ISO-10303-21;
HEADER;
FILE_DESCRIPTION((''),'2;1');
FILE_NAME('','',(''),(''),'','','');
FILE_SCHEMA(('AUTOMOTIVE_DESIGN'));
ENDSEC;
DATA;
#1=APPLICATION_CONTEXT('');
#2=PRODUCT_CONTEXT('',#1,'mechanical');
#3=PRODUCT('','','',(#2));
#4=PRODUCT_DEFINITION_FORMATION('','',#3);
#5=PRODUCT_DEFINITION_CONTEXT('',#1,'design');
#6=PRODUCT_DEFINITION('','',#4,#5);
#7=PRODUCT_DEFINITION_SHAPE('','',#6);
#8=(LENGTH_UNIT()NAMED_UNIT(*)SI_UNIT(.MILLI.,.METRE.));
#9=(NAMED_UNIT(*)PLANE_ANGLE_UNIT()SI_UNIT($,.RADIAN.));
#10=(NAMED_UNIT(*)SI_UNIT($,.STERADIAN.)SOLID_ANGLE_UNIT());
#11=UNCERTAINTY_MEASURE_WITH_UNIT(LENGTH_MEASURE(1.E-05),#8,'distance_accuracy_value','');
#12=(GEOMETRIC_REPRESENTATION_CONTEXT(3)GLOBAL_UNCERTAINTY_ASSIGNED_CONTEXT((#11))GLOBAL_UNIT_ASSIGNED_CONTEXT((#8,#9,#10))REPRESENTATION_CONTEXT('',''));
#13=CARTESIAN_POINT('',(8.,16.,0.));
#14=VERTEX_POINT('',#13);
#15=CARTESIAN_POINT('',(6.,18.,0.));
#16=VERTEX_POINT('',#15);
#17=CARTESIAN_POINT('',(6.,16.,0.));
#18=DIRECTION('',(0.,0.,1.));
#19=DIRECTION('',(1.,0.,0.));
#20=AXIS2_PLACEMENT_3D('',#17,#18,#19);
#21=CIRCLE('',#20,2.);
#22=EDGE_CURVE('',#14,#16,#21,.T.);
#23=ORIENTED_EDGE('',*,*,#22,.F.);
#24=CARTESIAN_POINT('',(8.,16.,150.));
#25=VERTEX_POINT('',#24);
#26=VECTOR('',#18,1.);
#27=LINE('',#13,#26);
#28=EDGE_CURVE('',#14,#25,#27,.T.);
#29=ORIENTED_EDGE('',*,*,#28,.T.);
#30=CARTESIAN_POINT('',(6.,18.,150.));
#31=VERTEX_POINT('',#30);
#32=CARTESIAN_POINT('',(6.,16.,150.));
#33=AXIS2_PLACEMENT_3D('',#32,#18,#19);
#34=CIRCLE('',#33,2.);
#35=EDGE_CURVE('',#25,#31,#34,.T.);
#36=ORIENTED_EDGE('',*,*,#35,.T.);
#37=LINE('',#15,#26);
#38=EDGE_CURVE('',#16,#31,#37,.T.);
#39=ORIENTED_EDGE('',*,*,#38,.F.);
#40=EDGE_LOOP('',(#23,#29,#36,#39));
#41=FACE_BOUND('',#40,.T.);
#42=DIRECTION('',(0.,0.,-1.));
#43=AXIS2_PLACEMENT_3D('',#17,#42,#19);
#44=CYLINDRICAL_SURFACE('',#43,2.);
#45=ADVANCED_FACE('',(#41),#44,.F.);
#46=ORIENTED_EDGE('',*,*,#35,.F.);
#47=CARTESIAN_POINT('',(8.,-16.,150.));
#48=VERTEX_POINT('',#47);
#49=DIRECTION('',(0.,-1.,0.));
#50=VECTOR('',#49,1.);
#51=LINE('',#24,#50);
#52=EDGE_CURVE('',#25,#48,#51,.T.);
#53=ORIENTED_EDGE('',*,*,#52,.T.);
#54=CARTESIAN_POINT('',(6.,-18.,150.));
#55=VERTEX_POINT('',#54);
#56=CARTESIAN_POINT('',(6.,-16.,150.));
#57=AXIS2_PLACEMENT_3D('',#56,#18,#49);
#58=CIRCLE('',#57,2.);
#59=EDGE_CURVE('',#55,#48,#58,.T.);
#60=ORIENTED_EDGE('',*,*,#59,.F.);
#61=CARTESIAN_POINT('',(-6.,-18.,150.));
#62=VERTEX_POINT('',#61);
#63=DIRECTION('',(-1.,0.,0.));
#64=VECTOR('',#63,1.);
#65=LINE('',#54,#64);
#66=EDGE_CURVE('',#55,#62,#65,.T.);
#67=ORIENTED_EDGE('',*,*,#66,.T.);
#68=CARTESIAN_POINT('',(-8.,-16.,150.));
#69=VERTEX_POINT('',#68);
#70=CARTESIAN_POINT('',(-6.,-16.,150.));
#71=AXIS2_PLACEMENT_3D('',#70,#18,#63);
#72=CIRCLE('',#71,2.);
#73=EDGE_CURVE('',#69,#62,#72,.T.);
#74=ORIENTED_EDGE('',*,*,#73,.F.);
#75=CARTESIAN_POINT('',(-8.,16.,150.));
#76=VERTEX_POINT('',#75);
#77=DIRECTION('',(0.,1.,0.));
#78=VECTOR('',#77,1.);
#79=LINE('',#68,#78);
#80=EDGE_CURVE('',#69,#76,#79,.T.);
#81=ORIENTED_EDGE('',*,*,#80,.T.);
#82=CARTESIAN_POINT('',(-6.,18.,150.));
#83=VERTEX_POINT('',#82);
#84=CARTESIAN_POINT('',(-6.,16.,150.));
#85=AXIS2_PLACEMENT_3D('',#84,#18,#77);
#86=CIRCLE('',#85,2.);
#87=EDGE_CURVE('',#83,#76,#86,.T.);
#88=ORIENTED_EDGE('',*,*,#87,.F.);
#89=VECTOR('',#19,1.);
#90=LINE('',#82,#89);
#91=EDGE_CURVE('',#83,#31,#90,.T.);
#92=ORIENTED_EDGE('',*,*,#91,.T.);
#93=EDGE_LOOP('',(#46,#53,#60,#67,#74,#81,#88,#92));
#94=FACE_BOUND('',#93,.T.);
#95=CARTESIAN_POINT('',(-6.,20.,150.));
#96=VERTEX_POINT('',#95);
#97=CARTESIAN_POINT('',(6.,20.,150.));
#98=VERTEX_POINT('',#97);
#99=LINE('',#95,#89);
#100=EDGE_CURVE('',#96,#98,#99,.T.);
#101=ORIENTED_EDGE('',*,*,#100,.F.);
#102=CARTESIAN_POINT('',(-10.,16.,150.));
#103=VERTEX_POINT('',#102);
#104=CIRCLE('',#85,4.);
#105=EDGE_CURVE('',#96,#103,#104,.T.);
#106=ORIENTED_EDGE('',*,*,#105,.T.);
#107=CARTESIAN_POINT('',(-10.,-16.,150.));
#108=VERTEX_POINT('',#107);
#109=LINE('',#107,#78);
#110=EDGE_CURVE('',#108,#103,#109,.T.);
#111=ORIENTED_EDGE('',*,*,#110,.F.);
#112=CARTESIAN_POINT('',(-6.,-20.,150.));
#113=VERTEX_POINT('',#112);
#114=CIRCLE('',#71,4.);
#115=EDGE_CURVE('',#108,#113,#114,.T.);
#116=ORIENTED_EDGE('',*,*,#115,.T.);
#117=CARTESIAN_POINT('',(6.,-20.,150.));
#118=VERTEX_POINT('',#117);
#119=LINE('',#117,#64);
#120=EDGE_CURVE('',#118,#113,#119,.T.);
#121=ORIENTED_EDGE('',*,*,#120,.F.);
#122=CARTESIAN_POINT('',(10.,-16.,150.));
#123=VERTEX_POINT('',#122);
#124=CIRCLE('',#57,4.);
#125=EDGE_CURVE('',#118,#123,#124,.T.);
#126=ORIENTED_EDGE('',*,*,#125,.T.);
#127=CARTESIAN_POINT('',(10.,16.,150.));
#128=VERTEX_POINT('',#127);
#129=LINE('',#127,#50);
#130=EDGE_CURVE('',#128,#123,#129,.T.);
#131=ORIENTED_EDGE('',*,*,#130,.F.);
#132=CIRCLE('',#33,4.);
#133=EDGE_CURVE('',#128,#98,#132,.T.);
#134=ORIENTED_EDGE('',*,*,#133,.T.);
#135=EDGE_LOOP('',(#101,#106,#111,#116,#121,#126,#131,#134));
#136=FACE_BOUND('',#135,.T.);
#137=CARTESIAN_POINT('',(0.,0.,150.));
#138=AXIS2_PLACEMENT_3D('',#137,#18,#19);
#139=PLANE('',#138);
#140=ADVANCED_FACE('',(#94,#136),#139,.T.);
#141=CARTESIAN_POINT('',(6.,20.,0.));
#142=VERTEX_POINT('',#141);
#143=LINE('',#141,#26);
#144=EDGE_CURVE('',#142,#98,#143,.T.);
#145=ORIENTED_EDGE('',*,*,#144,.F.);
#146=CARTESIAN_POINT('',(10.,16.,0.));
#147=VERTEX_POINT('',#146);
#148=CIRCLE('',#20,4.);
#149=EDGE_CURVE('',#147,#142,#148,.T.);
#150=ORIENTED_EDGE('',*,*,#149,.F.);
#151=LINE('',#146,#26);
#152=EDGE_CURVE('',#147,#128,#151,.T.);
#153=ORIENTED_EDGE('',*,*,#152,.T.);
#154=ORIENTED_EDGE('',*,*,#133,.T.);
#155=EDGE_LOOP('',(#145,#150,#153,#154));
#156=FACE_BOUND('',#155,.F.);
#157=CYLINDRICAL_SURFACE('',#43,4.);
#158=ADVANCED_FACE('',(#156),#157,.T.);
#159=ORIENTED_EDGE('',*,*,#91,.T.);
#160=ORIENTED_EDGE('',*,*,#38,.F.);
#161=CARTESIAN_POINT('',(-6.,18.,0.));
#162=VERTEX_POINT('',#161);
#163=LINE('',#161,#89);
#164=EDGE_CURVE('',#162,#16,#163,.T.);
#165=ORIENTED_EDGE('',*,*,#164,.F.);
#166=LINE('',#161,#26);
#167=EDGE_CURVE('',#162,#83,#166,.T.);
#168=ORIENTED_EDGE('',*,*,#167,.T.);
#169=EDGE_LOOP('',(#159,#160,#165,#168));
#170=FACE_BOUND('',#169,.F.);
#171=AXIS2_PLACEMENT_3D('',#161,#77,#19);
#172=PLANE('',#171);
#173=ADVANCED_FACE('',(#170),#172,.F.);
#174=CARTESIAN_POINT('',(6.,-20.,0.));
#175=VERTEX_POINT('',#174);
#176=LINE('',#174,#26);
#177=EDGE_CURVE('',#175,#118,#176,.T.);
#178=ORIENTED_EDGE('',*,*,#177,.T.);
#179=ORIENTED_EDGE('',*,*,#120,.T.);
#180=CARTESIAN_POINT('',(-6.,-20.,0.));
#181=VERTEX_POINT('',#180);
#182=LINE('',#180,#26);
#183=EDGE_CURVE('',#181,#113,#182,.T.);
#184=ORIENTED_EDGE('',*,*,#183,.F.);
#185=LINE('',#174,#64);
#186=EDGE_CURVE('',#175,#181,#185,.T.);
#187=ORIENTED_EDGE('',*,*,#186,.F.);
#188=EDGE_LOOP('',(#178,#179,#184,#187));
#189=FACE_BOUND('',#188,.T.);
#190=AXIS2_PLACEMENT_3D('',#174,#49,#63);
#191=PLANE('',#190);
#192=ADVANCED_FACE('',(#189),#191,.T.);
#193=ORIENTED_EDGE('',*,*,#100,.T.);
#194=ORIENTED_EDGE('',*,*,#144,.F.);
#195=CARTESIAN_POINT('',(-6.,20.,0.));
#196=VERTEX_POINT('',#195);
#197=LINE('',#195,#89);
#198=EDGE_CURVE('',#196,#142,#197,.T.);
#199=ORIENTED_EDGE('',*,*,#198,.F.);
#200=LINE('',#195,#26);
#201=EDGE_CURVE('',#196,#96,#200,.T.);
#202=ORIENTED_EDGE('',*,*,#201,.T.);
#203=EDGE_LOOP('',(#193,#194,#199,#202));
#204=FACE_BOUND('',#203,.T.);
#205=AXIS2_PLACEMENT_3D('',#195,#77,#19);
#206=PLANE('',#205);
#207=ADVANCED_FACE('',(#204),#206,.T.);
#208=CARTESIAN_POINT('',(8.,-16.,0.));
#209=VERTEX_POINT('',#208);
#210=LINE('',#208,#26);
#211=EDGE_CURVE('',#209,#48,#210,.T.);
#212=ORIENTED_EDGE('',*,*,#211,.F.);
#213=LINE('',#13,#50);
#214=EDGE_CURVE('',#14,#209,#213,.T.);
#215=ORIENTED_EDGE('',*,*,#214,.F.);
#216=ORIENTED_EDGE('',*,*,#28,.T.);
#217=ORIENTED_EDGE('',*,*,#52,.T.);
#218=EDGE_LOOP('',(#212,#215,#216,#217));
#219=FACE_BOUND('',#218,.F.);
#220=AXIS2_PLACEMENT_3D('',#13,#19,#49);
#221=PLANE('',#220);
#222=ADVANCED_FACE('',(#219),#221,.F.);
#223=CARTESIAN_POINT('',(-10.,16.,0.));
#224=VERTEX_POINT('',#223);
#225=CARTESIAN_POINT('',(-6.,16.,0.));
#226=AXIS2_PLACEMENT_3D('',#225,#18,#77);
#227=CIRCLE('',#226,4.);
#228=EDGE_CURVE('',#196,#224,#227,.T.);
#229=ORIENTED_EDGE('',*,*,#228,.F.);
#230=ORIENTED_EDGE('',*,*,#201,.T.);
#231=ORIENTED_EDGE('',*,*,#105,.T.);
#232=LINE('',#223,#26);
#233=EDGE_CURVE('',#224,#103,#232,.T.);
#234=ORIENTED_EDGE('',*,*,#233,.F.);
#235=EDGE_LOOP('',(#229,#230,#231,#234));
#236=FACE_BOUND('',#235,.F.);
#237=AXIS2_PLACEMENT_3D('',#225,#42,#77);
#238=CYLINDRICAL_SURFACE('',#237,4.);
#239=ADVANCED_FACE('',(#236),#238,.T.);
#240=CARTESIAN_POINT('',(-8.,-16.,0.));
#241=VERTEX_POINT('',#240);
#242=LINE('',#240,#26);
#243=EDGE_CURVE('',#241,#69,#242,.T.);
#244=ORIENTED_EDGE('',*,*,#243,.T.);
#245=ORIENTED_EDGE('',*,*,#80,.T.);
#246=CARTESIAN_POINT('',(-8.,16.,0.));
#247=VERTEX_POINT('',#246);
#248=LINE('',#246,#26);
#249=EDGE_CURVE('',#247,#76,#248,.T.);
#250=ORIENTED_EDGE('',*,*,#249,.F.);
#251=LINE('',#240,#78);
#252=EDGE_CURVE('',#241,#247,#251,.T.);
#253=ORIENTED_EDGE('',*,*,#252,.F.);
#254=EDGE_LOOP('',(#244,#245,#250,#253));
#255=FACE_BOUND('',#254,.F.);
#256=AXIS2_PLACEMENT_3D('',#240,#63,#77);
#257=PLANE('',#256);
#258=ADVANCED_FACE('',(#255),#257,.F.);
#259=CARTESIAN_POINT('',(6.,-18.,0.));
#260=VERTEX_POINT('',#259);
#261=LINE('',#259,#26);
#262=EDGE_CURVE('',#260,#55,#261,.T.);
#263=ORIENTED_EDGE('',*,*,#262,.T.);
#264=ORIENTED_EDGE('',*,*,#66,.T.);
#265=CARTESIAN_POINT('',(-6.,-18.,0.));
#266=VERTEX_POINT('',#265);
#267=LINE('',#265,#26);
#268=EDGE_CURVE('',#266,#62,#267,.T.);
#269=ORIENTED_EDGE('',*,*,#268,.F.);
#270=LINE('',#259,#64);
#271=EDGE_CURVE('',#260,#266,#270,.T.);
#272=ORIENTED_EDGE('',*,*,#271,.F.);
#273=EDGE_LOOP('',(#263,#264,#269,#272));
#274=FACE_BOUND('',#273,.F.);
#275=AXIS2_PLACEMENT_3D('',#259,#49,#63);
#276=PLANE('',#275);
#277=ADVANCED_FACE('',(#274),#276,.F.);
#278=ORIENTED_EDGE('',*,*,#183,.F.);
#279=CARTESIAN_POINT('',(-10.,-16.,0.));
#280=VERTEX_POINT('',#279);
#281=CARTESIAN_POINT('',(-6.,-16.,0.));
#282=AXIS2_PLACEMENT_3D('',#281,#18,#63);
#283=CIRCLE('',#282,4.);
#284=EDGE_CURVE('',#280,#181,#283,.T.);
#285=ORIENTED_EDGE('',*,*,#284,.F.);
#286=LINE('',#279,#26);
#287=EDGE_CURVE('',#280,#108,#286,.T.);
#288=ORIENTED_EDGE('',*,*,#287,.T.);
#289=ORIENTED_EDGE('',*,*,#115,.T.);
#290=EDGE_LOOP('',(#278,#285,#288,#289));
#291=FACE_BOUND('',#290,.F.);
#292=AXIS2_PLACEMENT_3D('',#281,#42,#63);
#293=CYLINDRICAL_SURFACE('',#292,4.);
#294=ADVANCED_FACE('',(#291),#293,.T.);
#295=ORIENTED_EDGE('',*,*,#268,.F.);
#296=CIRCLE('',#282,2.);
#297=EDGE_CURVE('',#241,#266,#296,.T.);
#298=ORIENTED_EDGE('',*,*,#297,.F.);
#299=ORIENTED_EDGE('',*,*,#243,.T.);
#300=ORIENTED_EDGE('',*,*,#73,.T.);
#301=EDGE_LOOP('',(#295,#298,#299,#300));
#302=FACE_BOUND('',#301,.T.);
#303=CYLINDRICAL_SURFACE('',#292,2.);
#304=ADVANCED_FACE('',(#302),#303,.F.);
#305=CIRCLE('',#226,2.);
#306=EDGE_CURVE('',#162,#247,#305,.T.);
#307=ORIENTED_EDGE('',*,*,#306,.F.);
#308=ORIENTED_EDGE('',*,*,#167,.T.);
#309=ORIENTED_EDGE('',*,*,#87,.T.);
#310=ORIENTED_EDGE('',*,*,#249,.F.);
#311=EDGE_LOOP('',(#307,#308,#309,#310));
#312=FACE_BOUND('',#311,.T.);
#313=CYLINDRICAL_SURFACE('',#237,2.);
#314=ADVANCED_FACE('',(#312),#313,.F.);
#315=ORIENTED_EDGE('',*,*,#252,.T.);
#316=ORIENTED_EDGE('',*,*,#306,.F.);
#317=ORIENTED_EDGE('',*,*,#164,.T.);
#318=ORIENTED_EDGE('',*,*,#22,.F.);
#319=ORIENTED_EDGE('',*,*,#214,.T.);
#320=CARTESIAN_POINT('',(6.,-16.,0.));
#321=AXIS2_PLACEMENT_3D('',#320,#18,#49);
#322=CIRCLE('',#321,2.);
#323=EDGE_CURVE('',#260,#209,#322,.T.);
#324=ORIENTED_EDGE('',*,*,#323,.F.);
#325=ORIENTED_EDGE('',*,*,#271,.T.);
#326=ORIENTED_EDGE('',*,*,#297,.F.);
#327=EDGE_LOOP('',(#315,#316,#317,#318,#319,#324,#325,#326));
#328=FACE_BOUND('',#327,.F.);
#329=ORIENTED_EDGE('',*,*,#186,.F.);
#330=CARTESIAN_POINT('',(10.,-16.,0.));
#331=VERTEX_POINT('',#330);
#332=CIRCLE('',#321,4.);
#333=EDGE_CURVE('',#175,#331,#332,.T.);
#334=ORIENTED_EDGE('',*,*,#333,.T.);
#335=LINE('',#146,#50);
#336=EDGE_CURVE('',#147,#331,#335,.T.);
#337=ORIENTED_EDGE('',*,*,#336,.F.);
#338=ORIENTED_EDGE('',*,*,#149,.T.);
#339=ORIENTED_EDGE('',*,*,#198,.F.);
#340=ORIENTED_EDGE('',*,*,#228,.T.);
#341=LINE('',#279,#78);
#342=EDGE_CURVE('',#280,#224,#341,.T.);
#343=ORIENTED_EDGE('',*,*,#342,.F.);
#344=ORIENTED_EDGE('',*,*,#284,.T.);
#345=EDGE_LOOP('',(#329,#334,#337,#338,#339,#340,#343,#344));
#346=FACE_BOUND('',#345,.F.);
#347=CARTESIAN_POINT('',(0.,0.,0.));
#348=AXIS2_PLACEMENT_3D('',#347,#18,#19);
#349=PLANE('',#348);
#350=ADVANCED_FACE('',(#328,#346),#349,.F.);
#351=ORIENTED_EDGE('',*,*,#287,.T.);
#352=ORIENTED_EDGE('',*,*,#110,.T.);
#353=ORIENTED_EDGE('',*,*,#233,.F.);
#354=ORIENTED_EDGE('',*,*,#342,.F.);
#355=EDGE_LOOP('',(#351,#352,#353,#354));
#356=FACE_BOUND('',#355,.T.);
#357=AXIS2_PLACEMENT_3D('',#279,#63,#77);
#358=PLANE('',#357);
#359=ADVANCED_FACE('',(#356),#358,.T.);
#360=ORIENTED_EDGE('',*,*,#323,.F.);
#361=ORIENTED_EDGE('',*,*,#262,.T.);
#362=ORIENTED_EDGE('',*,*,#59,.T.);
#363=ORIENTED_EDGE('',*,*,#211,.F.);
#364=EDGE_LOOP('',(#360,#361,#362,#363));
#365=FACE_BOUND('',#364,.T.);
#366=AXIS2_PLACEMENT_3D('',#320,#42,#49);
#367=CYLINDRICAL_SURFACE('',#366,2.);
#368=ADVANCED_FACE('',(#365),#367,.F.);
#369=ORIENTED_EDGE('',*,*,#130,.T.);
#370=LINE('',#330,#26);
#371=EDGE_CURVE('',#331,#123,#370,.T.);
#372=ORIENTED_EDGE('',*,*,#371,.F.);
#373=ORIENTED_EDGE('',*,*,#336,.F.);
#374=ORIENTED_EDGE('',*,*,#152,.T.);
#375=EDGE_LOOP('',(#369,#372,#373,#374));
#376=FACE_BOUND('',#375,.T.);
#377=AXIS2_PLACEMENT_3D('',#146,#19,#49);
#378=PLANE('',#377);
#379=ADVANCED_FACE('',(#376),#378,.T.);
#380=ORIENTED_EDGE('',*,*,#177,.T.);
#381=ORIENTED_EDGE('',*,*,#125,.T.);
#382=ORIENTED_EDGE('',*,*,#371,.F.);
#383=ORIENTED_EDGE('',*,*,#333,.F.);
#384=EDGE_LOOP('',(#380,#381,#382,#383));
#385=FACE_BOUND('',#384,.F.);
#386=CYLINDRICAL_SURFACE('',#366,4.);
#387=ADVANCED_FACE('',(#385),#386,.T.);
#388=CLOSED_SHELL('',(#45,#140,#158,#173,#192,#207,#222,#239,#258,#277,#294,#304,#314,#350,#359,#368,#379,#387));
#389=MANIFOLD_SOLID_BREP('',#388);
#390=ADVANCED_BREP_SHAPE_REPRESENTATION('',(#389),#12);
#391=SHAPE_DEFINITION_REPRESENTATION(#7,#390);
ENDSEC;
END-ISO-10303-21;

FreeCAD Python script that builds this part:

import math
import FreeCAD as App
import Part
import Sketcher
from FreeCAD import Vector
Q = App.Units.Quantity

doc = App.newDocument("Part")
body = doc.addObject("PartDesign::Body", "Body")

sketch1 = body.newObject("Sketcher::SketchObject", "Sketch")
sketch1.AttachmentSupport = (doc.getObject("XY_Plane"), [""])
sketch1.MapMode = "FlatFace"
sketch1.addGeometry([
    Part.LineSegment(Vector(-10, 16, 0), Vector(-10, -16, 0)),
    Part.ArcOfCircle(Part.Circle(Vector(-6, -16, 0), Vector(0, 0, 1), 4), math.radians(180), math.radians(270)),
    Part.LineSegment(Vector(-6, -20, 0), Vector(6, -20, 0)),
    Part.ArcOfCircle(Part.Circle(Vector(6, -16, 0), Vector(0, 0, 1), 4), math.radians(-90), math.radians(0)),
    Part.LineSegment(Vector(10, -16, 0), Vector(10, 16, 0)),
    Part.ArcOfCircle(Part.Circle(Vector(6, 16, 0), Vector(0, 0, 1), 4), math.radians(0), math.radians(90)),
    Part.LineSegment(Vector(6, 20, 0), Vector(-6, 20, 0)),
    Part.ArcOfCircle(Part.Circle(Vector(-6, 16, 0), Vector(0, 0, 1), 4), math.radians(90), math.radians(180)),
    Part.ArcOfCircle(Part.Circle(Vector(-6, 16, 0), Vector(0, 0, 1), 2), math.radians(90), math.radians(180)),
    Part.LineSegment(Vector(-6, 18, 0), Vector(6, 18, 0)),
    Part.ArcOfCircle(Part.Circle(Vector(6, 16, 0), Vector(0, 0, 1), 2), math.radians(0), math.radians(90)),
    Part.LineSegment(Vector(8, 16, 0), Vector(8, -16, 0)),
    Part.ArcOfCircle(Part.Circle(Vector(6, -16, 0), Vector(0, 0, 1), 2), math.radians(-90), math.radians(0)),
    Part.LineSegment(Vector(6, -18, 0), Vector(-6, -18, 0)),
    Part.ArcOfCircle(Part.Circle(Vector(-6, -16, 0), Vector(0, 0, 1), 2), math.radians(180), math.radians(270)),
    Part.LineSegment(Vector(-8, -16, 0), Vector(-8, 16, 0)),
], False)
sketch1.addConstraint([
    Sketcher.Constraint("Tangent", 0, 2, 1, 1),
    Sketcher.Constraint("Tangent", 1, 2, 2, 1),
    Sketcher.Constraint("Tangent", 2, 2, 3, 1),
    Sketcher.Constraint("Tangent", 3, 2, 4, 1),
    Sketcher.Constraint("Tangent", 4, 2, 5, 1),
    Sketcher.Constraint("Tangent", 5, 2, 6, 1),
    Sketcher.Constraint("Tangent", 6, 2, 7, 1),
    Sketcher.Constraint("Tangent", 7, 2, 0, 1),
    Sketcher.Constraint("Tangent", 8, 1, 9, 1),
    Sketcher.Constraint("Tangent", 9, 2, 10, 2),
    Sketcher.Constraint("Tangent", 10, 1, 11, 1),
    Sketcher.Constraint("Tangent", 11, 2, 12, 2),
    Sketcher.Constraint("Tangent", 12, 1, 13, 1),
    Sketcher.Constraint("Tangent", 13, 2, 14, 2),
    Sketcher.Constraint("Tangent", 14, 1, 15, 1),
    Sketcher.Constraint("Tangent", 15, 2, 8, 2),
    Sketcher.Constraint("Vertical", 0),
    Sketcher.Constraint("Horizontal", 2),
    Sketcher.Constraint("Vertical", 4),
    Sketcher.Constraint("Horizontal", 6),
    Sketcher.Constraint("Horizontal", 9),
    Sketcher.Constraint("Vertical", 11),
    Sketcher.Constraint("Horizontal", 13),
    Sketcher.Constraint("Vertical", 15),
    Sketcher.Constraint("Coincident", 8, 3, 7, 3),
    Sketcher.Constraint("Coincident", 10, 3, 5, 3),
    Sketcher.Constraint("Coincident", 12, 3, 3, 3),
    Sketcher.Constraint("Equal", 1, 3),
    Sketcher.Constraint("Equal", 3, 5),
    Sketcher.Constraint("Equal", 5, 7),
    Sketcher.Constraint("Equal", 12, 14),
    Sketcher.Constraint("Symmetric", 1, 3, 5, 3, -1, 1),
    Sketcher.Constraint("Radius", 1, Q("4 mm")),
    Sketcher.Constraint("Radius", 8, Q("2 mm")),
    Sketcher.Constraint("DistanceX", 0, 2, -1, 1, Q("10 mm")),
    Sketcher.Constraint("DistanceY", 1, 2, -1, 1, Q("20 mm")),
])
pad1 = body.newObject("PartDesign::Pad", "Pad")
pad1.Profile = sketch1
pad1.Length = 150

doc.recompute()
